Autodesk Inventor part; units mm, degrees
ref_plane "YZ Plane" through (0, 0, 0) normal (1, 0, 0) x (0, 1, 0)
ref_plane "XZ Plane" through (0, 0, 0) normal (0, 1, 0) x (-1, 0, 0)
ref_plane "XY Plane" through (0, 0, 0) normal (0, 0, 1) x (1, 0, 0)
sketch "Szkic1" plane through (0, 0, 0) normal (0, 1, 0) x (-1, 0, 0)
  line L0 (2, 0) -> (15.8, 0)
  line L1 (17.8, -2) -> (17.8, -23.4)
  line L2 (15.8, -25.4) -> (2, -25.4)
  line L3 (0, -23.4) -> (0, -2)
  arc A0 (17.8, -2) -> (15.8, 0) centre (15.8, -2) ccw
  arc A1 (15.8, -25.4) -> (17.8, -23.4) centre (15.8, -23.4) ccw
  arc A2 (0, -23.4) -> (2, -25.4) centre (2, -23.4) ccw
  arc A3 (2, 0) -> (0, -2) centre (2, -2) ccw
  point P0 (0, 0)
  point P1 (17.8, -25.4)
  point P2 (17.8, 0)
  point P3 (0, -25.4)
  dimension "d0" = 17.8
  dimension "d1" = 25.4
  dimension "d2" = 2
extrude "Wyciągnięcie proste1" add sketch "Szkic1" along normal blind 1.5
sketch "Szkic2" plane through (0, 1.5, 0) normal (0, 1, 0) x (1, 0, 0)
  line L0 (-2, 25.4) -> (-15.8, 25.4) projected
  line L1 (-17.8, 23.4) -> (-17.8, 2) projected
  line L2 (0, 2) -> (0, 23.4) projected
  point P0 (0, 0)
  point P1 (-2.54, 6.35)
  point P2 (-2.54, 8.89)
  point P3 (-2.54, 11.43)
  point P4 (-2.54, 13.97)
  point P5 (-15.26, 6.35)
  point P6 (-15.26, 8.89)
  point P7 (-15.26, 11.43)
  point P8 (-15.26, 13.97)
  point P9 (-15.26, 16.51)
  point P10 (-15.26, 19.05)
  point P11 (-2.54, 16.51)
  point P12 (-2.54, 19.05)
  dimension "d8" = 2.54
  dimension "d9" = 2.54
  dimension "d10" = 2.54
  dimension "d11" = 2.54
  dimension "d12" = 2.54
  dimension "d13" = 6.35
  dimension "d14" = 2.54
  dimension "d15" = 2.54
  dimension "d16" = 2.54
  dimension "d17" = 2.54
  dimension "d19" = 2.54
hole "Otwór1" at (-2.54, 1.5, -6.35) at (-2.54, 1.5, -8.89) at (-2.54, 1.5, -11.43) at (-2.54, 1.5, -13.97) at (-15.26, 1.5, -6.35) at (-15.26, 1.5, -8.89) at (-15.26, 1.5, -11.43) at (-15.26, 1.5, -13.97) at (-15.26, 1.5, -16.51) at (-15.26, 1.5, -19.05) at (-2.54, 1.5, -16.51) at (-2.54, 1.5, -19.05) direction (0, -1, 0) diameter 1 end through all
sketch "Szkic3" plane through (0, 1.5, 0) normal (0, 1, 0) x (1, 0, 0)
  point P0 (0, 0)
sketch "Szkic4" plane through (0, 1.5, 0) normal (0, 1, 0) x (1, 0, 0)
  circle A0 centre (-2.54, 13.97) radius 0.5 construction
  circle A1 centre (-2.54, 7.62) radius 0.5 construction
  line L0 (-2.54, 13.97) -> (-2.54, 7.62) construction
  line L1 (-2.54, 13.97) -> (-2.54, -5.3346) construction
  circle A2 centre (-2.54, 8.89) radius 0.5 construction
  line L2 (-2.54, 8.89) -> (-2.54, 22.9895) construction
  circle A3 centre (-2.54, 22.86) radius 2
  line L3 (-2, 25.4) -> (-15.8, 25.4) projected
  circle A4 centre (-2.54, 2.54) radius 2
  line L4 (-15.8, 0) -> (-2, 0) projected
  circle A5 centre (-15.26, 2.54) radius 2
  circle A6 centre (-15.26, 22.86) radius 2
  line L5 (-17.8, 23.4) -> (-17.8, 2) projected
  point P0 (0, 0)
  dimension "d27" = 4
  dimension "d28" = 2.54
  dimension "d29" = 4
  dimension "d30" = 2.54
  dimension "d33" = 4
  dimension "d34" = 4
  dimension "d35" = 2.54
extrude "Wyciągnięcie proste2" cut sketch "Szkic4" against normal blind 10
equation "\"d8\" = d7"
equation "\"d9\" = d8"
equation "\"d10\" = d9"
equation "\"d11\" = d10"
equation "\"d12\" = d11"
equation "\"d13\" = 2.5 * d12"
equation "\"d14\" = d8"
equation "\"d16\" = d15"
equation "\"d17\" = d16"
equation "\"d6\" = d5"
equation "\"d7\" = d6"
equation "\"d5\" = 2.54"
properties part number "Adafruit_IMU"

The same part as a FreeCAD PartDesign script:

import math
import FreeCAD as App
import Part
import Sketcher

doc = App.newDocument("Part")
params = doc.addObject("Spreadsheet::Sheet", "Params")
for row, (alias, value) in enumerate([
    ("sketch1_radius", "2 mm"),
    ("pad1_length", "1.5 mm"),
    ("sketch2_diameter", "1 mm"),
    ("hole_diameter", "1 mm"),
    ("sketch3_diameter", "4 mm"),
    ("pocket1_length", "10 mm"),
], start=1):
    params.set(f"A{row}", alias)
    params.set(f"B{row}", "=" + value)
    params.setAlias(f"B{row}", alias)

body = doc.addObject("PartDesign::Body", "Body")

sketch1 = body.newObject("Sketcher::SketchObject", "Sketch")
sketch1.AttachmentSupport = (doc.getObject("XZ_Plane"), [""])
sketch1.MapMode = "FlatFace"
sketch1.addGeometry([
    Part.LineSegment(App.Vector(-15.8, 0, 0), App.Vector(-2, 0, 0)),
    Part.ArcOfCircle(Part.Circle(App.Vector(-2, -2, 0), App.Vector(0, 0, 1), 2), math.radians(0), math.radians(90)),
    Part.LineSegment(App.Vector(0, -2, 0), App.Vector(0, -23.4, 0)),
    Part.ArcOfCircle(Part.Circle(App.Vector(-2, -23.4, 0), App.Vector(0, 0, 1), 2), math.radians(-90), math.radians(0)),
    Part.LineSegment(App.Vector(-2, -25.4, 0), App.Vector(-15.8, -25.4, 0)),
    Part.ArcOfCircle(Part.Circle(App.Vector(-15.8, -23.4, 0), App.Vector(0, 0, 1), 2), math.radians(180), math.radians(270)),
    Part.LineSegment(App.Vector(-17.8, -23.4, 0), App.Vector(-17.8, -2, 0)),
    Part.ArcOfCircle(Part.Circle(App.Vector(-15.8, -2, 0), App.Vector(0, 0, 1), 2), math.radians(90), math.radians(180)),
], False)
sketch1.addConstraint([
    Sketcher.Constraint("Tangent", 0, 2, 1, 2),
    Sketcher.Constraint("Tangent", 1, 1, 2, 1),
    Sketcher.Constraint("Tangent", 2, 2, 3, 2),
    Sketcher.Constraint("Tangent", 3, 1, 4, 1),
    Sketcher.Constraint("Tangent", 4, 2, 5, 2),
    Sketcher.Constraint("Tangent", 5, 1, 6, 1),
    Sketcher.Constraint("Tangent", 6, 2, 7, 2),
    Sketcher.Constraint("Tangent", 7, 1, 0, 1),
    Sketcher.Constraint("Horizontal", 0),
    Sketcher.Constraint("Vertical", 2),
    Sketcher.Constraint("Horizontal", 4),
    Sketcher.Constraint("Vertical", 6),
    Sketcher.Constraint("Equal", 1, 3),
    Sketcher.Constraint("Equal", 3, 5),
    Sketcher.Constraint("Equal", 5, 7),
    Sketcher.Constraint("PointOnObject", 0, 2, -1),
    Sketcher.Constraint("PointOnObject", 1, 1, -2),
    Sketcher.Constraint("Radius", 1, 2.0),
    Sketcher.Constraint("DistanceY", 3, 1, -1, 1, 25.4),
    Sketcher.Constraint("DistanceX", 5, 1, -1, 1, 17.8),
])
sketch1.setExpression("Constraints[17]", "Params.sketch1_radius")
pad1 = body.newObject("PartDesign::Pad", "Pad")
pad1.Profile = sketch1
pad1.setExpression("Length", "Params.pad1_length")
pad1.Reversed = True

sketch2 = body.newObject("Sketcher::SketchObject", "Sketch001")
sketch2.AttachmentSupport = (doc.getObject("XZ_Plane"), [""])
sketch2.MapMode = "FlatFace"
sketch2.AttachmentOffset = App.Placement(App.Vector(0, 0, -1.5), App.Rotation())
sketch2.addGeometry([
    Part.Circle(App.Vector(-2.5, -6.3, 0), App.Vector(0, 0, 1), 0.5),
    Part.Circle(App.Vector(-2.5, -8.9, 0), App.Vector(0, 0, 1), 0.5),
    Part.Circle(App.Vector(-2.5, -11.4, 0), App.Vector(0, 0, 1), 0.5),
    Part.Circle(App.Vector(-2.5, -14, 0), App.Vector(0, 0, 1), 0.5),
    Part.Circle(App.Vector(-15.3, -6.3, 0), App.Vector(0, 0, 1), 0.5),
    Part.Circle(App.Vector(-15.3, -8.9, 0), App.Vector(0, 0, 1), 0.5),
    Part.Circle(App.Vector(-15.3, -11.4, 0), App.Vector(0, 0, 1), 0.5),
    Part.Circle(App.Vector(-15.3, -14, 0), App.Vector(0, 0, 1), 0.5),
    Part.Circle(App.Vector(-15.3, -16.5, 0), App.Vector(0, 0, 1), 0.5),
    Part.Circle(App.Vector(-15.3, -19.1, 0), App.Vector(0, 0, 1), 0.5),
    Part.Circle(App.Vector(-2.5, -16.5, 0), App.Vector(0, 0, 1), 0.5),
    Part.Circle(App.Vector(-2.5, -19.1, 0), App.Vector(0, 0, 1), 0.5),
], False)
sketch2.addConstraint([
    Sketcher.Constraint("Equal", 0, 1),
    Sketcher.Constraint("Equal", 1, 2),
    Sketcher.Constraint("Equal", 2, 3),
    Sketcher.Constraint("Equal", 3, 4),
    Sketcher.Constraint("Equal", 4, 5),
    Sketcher.Constraint("Equal", 5, 6),
    Sketcher.Constraint("Equal", 6, 7),
    Sketcher.Constraint("Equal", 7, 8),
    Sketcher.Constraint("Equal", 8, 9),
    Sketcher.Constraint("Equal", 9, 10),
    Sketcher.Constraint("Equal", 10, 11),
    Sketcher.Constraint("Horizontal", 0, 3, 4, 3),
    Sketcher.Constraint("Horizontal", 1, 3, 5, 3),
    Sketcher.Constraint("Horizontal", 2, 3, 6, 3),
    Sketcher.Constraint("Horizontal", 3, 3, 7, 3),
    Sketcher.Constraint("Horizontal", 8, 3, 10, 3),
    Sketcher.Constraint("Horizontal", 9, 3, 11, 3),
    Sketcher.Constraint("Vertical", 0, 3, 1, 3),
    Sketcher.Constraint("Vertical", 1, 3, 2, 3),
    Sketcher.Constraint("Vertical", 2, 3, 3, 3),
    Sketcher.Constraint("Vertical", 4, 3, 5, 3),
    Sketcher.Constraint("Vertical", 5, 3, 6, 3),
    Sketcher.Constraint("Vertical", 6, 3, 7, 3),
    Sketcher.Constraint("Vertical", 7, 3, 8, 3),
    Sketcher.Constraint("Vertical", 8, 3, 9, 3),
    Sketcher.Constraint("Vertical", 3, 3, 10, 3),
    Sketcher.Constraint("Vertical", 10, 3, 11, 3),
    Sketcher.Constraint("Diameter", 0, 1.0),
    Sketcher.Constraint("DistanceY", 9, 3, 4, 3, 12.7),
    Sketcher.Constraint("DistanceX", 0, 3, -1, 1, 2.54),
    Sketcher.Constraint("DistanceY", 0, 3, -1, 1, 6.35),
    Sketcher.Constraint("DistanceY", 1, 3, -1, 1, 8.89),
    Sketcher.Constraint("DistanceY", 2, 3, -1, 1, 11.43),
    Sketcher.Constraint("DistanceY", 3, 3, -1, 1, 13.97),
    Sketcher.Constraint("DistanceX", 4, 3, -1, 1, 15.26),
    Sketcher.Constraint("DistanceY", 8, 3, -1, 1, 16.51),
])
sketch2.setExpression("Constraints[27]", "Params.sketch2_diameter")
doc.recompute()
hole = body.newObject("PartDesign::Hole", "Hole")
hole.Profile = sketch2
hole.ThreadType = "None"
hole.setExpression("Diameter", "Params.hole_diameter")
hole.DepthType = "ThroughAll"
hole.Reversed = True

sketch3 = body.newObject("Sketcher::SketchObject", "Sketch002")
sketch3.AttachmentSupport = (doc.getObject("XZ_Plane"), [""])
sketch3.MapMode = "FlatFace"
sketch3.AttachmentOffset = App.Placement(App.Vector(0, 0, -1.5), App.Rotation())
sketch3.addGeometry([
    Part.Circle(App.Vector(-2.5, -22.9, 0), App.Vector(0, 0, 1), 2),
    Part.Circle(App.Vector(-2.5, -2.5, 0), App.Vector(0, 0, 1), 2),
    Part.Circle(App.Vector(-15.3, -2.5, 0), App.Vector(0, 0, 1), 2),
    Part.Circle(App.Vector(-15.3, -22.9, 0), App.Vector(0, 0, 1), 2),
], False)
sketch3.addConstraint([
    Sketcher.Constraint("Equal", 0, 1),
    Sketcher.Constraint("Equal", 1, 2),
    Sketcher.Constraint("Equal", 2, 3),
    Sketcher.Constraint("Horizontal", 1, 3, 2, 3),
    Sketcher.Constraint("Horizontal", 0, 3, 3, 3),
    Sketcher.Constraint("Vertical", 0, 3, 1, 3),
    Sketcher.Constraint("Vertical", 2, 3, 3, 3),
    Sketcher.Constraint("Diameter", 0, 4.0),
    Sketcher.Constraint("DistanceX", 0, 3, -1, 1, 2.54),
    Sketcher.Constraint("DistanceY", 1, 3, -1, 1, 2.54),
    Sketcher.Constraint("DistanceY", 0, 3, -1, 1, 22.86),
    Sketcher.Constraint("DistanceX", 2, 3, -1, 1, 15.26),
])
sketch3.setExpression("Constraints[7]", "Params.sketch3_diameter")
pocket1 = body.newObject("PartDesign::Pocket", "Pocket")
pocket1.Profile = sketch3
pocket1.setExpression("Length", "Params.pocket1_length")
pocket1.Reversed = True

doc.recompute()
